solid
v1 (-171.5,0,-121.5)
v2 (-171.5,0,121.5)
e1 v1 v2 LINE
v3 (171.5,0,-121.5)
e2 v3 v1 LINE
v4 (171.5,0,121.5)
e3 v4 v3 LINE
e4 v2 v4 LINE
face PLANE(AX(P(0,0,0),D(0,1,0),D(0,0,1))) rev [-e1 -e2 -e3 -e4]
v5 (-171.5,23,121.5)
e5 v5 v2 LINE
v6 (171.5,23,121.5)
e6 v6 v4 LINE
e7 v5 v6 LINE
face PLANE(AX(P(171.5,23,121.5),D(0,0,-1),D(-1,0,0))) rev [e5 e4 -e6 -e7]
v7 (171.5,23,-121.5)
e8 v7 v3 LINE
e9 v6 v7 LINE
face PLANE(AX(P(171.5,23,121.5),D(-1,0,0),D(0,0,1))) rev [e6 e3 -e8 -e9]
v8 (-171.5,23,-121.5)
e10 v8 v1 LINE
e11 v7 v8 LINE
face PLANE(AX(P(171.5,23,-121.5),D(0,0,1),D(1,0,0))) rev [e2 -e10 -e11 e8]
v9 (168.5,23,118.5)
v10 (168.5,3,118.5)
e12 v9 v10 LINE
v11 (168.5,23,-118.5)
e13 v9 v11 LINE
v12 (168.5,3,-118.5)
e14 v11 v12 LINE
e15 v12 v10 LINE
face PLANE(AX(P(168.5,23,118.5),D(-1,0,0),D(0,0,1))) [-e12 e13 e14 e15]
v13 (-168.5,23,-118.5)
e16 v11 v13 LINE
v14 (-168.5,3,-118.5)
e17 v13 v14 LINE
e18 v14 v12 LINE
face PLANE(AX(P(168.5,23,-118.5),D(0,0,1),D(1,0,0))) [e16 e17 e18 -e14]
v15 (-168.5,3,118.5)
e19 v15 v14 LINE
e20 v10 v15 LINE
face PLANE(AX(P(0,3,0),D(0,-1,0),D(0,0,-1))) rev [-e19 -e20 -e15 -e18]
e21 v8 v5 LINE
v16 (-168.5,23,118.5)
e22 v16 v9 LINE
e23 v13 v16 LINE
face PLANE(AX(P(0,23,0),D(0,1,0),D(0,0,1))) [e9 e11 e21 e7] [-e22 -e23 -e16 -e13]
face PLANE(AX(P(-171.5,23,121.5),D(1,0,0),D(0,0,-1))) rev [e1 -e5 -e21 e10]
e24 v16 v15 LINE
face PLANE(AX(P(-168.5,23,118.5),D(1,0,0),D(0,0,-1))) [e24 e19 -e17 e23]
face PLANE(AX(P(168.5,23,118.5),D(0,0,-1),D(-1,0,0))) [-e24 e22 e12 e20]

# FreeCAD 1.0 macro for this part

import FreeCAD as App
import Part
import Sketcher

V = App.Vector
Q = App.Units.Quantity

doc = App.newDocument("Part")
params = doc.addObject("Spreadsheet::Sheet", "Params")
for row, (alias, value) in enumerate([
    ("sketch1_width", "343 mm"),
    ("sketch1_width2", "337 mm"),
    ("sketch1_height", "243 mm"),
    ("sketch1_height2", "237 mm"),
    ("pad1_length", "23 mm"),
    ("sketch2_width", "343 mm"),
    ("sketch2_height", "243 mm"),
    ("pad2_length", "3 mm"),
], start=1):
    params.set(f"A{row}", alias)
    params.set(f"B{row}", "=" + value)
    params.setAlias(f"B{row}", alias)

body = doc.addObject("PartDesign::Body", "Body")

# Sketch on XZ plane
sketch1 = doc.addObject("Sketcher::SketchObject", "Sketch")
body.addObject(sketch1)
sketch1.AttachmentSupport = (doc.XZ_Plane, [""])
sketch1.MapMode = "FlatFace"
sketch1.addGeometry([
    Part.LineSegment(V(-172, -122, 0), V(-172, 122, 0)),  # 0
    Part.LineSegment(V(-172, 122, 0), V(172, 122, 0)),  # 1
    Part.LineSegment(V(172, 122, 0), V(172, -122, 0)),  # 2
    Part.LineSegment(V(172, -122, 0), V(-172, -122, 0)),  # 3
    Part.LineSegment(V(168, 118, 0), V(-168, 118, 0)),  # 4
    Part.LineSegment(V(-168, 118, 0), V(-168, -118, 0)),  # 5
    Part.LineSegment(V(-168, -118, 0), V(168, -118, 0)),  # 6
    Part.LineSegment(V(168, -118, 0), V(168, 118, 0)),  # 7
], False)
sketch1.addConstraint([
    Sketcher.Constraint("Coincident", 0, 2, 1, 1),
    Sketcher.Constraint("Coincident", 1, 2, 2, 1),
    Sketcher.Constraint("Coincident", 2, 2, 3, 1),
    Sketcher.Constraint("Coincident", 3, 2, 0, 1),
    Sketcher.Constraint("Coincident", 4, 2, 5, 1),
    Sketcher.Constraint("Coincident", 5, 2, 6, 1),
    Sketcher.Constraint("Coincident", 6, 2, 7, 1),
    Sketcher.Constraint("Coincident", 7, 2, 4, 1),
    Sketcher.Constraint("Vertical", 0),
    Sketcher.Constraint("Horizontal", 1),
    Sketcher.Constraint("Vertical", 2),
    Sketcher.Constraint("Horizontal", 3),
    Sketcher.Constraint("Horizontal", 4),
    Sketcher.Constraint("Vertical", 5),
    Sketcher.Constraint("Horizontal", 6),
    Sketcher.Constraint("Vertical", 7),
    Sketcher.Constraint("Symmetric", 0, 2, 2, 2, -1, 1),
    Sketcher.Constraint("Symmetric", 4, 2, 6, 2, -1, 1),
    Sketcher.Constraint("DistanceX", 1, 1, 1, 2, Q("343 mm")),
    Sketcher.Constraint("DistanceX", 4, 2, 4, 1, Q("337 mm")),
    Sketcher.Constraint("DistanceY", 0, 1, 0, 2, Q("243 mm")),
    Sketcher.Constraint("DistanceY", 5, 2, 5, 1, Q("237 mm")),
])
sketch1.setExpression("Constraints[18]", "Params.sketch1_width")
sketch1.setExpression("Constraints[19]", "Params.sketch1_width2")
sketch1.setExpression("Constraints[20]", "Params.sketch1_height")
sketch1.setExpression("Constraints[21]", "Params.sketch1_height2")
pad1 = doc.addObject("PartDesign::Pad", "Pad")
body.addObject(pad1)
pad1.Profile = sketch1
pad1.setExpression("Length", "Params.pad1_length")
pad1.Reversed = True

# Sketch on XZ plane
sketch2 = doc.addObject("Sketcher::SketchObject", "Sketch001")
body.addObject(sketch2)
sketch2.AttachmentSupport = (doc.XZ_Plane, [""])
sketch2.MapMode = "FlatFace"
sketch2.addGeometry([
    Part.LineSegment(V(-172, 122, 0), V(-172, -122, 0)),
    Part.LineSegment(V(-172, -122, 0), V(172, -122, 0)),
    Part.LineSegment(V(172, -122, 0), V(172, 122, 0)),
    Part.LineSegment(V(172, 122, 0), V(-172, 122, 0)),
], False)
sketch2.addConstraint([
    Sketcher.Constraint("Coincident", 0, 2, 1, 1),
    Sketcher.Constraint("Coincident", 1, 2, 2, 1),
    Sketcher.Constraint("Coincident", 2, 2, 3, 1),
    Sketcher.Constraint("Coincident", 3, 2, 0, 1),
    Sketcher.Constraint("Vertical", 0),
    Sketcher.Constraint("Horizontal", 1),
    Sketcher.Constraint("Vertical", 2),
    Sketcher.Constraint("Horizontal", 3),
    Sketcher.Constraint("Symmetric", 0, 2, 2, 2, -1, 1),
    Sketcher.Constraint("DistanceX", 1, 1, 1, 2, Q("343 mm")),
    Sketcher.Constraint("DistanceY", 0, 2, 0, 1, Q("243 mm")),
])
sketch2.setExpression("Constraints[9]", "Params.sketch2_width")
sketch2.setExpression("Constraints[10]", "Params.sketch2_height")
pad2 = doc.addObject("PartDesign::Pad", "Pad001")
body.addObject(pad2)
pad2.Profile = sketch2
pad2.setExpression("Length", "Params.pad2_length")
pad2.Reversed = True

doc.recompute()
